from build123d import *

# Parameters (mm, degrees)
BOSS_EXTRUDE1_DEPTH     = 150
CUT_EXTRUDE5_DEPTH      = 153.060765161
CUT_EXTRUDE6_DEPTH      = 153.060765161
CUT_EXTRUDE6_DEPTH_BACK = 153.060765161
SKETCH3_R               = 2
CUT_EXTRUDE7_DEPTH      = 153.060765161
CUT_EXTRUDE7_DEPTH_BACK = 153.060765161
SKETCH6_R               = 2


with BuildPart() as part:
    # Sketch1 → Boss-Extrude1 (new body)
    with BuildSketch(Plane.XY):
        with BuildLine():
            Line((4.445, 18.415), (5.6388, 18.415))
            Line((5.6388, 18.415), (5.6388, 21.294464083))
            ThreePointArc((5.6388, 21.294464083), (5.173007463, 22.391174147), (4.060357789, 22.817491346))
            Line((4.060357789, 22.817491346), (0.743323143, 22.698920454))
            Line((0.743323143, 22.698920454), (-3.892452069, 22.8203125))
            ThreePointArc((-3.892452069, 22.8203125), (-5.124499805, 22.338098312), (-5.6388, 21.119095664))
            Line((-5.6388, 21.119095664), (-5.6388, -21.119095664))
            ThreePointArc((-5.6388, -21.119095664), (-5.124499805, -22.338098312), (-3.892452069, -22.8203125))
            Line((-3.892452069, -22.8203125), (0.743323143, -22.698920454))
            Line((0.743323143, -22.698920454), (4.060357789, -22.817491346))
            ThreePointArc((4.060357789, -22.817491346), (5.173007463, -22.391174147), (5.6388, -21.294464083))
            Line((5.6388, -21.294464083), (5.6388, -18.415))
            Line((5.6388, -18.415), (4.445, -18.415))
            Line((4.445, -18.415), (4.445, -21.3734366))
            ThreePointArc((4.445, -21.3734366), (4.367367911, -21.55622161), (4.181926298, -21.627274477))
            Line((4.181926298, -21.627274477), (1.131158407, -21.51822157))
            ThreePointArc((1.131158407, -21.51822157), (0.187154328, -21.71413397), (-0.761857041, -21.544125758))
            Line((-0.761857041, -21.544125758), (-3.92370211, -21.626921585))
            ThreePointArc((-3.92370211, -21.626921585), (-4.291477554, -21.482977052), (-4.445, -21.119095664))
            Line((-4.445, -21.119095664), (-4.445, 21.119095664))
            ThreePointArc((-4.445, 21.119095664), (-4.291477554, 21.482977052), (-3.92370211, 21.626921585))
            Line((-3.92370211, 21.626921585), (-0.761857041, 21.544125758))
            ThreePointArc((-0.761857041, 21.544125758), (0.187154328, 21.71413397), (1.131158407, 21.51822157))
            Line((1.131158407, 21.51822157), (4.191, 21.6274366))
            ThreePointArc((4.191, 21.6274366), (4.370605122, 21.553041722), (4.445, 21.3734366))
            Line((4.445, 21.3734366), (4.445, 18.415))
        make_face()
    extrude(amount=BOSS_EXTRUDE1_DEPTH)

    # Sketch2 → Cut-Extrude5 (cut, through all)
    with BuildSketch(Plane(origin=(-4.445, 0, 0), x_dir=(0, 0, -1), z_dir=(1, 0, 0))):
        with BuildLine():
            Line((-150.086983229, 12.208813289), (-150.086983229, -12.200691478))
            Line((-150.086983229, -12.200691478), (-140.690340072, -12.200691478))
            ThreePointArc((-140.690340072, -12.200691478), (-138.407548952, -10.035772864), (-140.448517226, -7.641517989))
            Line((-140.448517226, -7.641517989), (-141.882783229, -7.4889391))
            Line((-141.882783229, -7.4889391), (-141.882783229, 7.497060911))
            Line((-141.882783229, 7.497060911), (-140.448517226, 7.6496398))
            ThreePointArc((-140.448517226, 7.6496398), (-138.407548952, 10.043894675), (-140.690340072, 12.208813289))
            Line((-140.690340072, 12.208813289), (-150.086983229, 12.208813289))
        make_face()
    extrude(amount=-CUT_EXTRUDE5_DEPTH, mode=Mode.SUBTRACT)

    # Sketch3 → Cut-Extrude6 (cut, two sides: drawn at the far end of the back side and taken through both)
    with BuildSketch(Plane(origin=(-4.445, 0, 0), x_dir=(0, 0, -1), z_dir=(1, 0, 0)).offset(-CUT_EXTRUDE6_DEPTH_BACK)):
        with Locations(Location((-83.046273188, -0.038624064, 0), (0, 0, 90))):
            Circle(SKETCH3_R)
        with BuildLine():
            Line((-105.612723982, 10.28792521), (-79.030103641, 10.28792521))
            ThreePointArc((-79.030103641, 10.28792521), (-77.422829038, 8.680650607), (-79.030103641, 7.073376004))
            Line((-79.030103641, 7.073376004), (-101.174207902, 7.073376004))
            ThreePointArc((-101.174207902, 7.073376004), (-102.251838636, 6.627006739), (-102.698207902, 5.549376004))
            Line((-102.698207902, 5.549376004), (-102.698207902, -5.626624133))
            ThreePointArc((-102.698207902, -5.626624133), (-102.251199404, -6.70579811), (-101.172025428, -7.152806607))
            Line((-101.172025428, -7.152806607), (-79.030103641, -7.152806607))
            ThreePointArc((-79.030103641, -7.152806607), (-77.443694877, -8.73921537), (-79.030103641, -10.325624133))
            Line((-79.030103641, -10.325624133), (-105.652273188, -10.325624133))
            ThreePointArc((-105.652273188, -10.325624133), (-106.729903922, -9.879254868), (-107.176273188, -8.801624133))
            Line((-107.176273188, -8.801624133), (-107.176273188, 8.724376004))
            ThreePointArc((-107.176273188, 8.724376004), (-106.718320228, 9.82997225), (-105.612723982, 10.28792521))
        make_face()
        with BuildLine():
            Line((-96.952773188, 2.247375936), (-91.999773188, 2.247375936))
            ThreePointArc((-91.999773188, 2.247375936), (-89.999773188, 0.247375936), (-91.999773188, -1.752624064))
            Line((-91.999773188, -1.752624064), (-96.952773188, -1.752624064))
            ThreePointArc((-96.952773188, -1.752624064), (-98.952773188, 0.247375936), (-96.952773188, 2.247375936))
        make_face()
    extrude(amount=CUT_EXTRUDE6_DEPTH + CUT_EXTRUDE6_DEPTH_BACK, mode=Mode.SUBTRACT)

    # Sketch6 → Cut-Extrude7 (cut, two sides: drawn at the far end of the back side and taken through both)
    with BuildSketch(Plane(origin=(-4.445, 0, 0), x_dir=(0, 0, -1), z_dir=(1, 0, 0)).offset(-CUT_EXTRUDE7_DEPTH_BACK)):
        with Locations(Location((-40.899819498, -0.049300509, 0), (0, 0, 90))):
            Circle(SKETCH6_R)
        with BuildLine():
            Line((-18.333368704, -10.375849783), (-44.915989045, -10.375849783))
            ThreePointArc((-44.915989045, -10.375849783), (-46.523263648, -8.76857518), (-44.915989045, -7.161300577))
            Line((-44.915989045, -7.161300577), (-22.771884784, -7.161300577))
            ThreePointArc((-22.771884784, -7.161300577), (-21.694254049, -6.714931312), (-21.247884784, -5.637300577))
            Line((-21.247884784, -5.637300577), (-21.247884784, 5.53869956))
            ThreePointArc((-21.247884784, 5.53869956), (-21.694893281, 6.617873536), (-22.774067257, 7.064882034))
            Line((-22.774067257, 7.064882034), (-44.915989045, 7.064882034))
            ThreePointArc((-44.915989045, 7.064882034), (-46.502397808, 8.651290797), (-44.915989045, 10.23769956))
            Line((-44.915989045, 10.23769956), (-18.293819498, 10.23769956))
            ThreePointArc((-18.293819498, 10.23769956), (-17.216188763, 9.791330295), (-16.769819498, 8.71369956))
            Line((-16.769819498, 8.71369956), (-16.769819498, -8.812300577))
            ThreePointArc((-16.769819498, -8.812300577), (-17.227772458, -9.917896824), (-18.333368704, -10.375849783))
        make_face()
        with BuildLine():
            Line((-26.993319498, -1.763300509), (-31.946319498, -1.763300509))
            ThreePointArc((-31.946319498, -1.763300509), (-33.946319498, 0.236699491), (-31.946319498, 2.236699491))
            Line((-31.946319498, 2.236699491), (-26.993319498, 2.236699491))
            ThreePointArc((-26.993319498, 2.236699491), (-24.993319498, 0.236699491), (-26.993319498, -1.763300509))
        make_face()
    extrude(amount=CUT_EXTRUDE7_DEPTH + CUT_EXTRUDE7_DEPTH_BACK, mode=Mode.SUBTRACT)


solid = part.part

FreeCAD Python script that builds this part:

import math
import FreeCAD as App
import Part
import Sketcher
Q = App.Units.Quantity

doc = App.newDocument("Part")
body = doc.addObject("PartDesign::Body", "Body")

# Sketch on XY plane
sketch1 = body.newObject("Sketcher::SketchObject", "Sketch")
sketch1.AttachmentSupport = (doc.getObject("XY_Plane"), [""])
sketch1.MapMode = "FlatFace"
sketch1.addGeometry([
    Part.LineSegment(App.Vector(4.445, 18.415, 0), App.Vector(5.6388, 18.415, 0)),  # 0
    Part.LineSegment(App.Vector(5.6388, 18.415, 0), App.Vector(5.6388, 21.294464, 0)),  # 1
    Part.ArcOfCircle(Part.Circle(App.Vector(4.1148, 21.294464, 0), App.Vector(0, 0, 1), 1.524), math.radians(0), math.radians(92.047226)),  # 2
    Part.LineSegment(App.Vector(4.060358, 22.817491, 0), App.Vector(0.743323, 22.69892, 0)),  # 3
    Part.LineSegment(App.Vector(0.743323, 22.69892, 0), App.Vector(-3.892452, 22.820312, 0)),  # 4
    Part.ArcOfCircle(Part.Circle(App.Vector(-3.937, 21.119096, 0), App.Vector(0, 0, 1), 1.7018), math.radians(88.5), math.radians(180)),  # 5
    Part.LineSegment(App.Vector(-5.6388, 21.119096, 0), App.Vector(-5.6388, -21.119096, 0)),  # 6
    Part.ArcOfCircle(Part.Circle(App.Vector(-3.937, -21.119096, 0), App.Vector(0, 0, 1), 1.7018), math.radians(180), math.radians(271.5)),  # 7
    Part.LineSegment(App.Vector(-3.892452, -22.820312, 0), App.Vector(0.743323, -22.69892, 0)),  # 8
    Part.LineSegment(App.Vector(0.743323, -22.69892, 0), App.Vector(4.060358, -22.817491, 0)),  # 9
    Part.ArcOfCircle(Part.Circle(App.Vector(4.1148, -21.294464, 0), App.Vector(0, 0, 1), 1.524), math.radians(-92.047226), math.radians(0)),  # 10
    Part.LineSegment(App.Vector(5.6388, -21.294464, 0), App.Vector(5.6388, -18.415, 0)),  # 11
    Part.LineSegment(App.Vector(5.6388, -18.415, 0), App.Vector(4.445, -18.415, 0)),  # 12
    Part.LineSegment(App.Vector(4.445, -18.415, 0), App.Vector(4.445, -21.373437, 0)),  # 13
    Part.ArcOfCircle(Part.Circle(App.Vector(4.191, -21.373437, 0), App.Vector(0, 0, 1), 0.254), math.radians(-92.047226), math.radians(0)),  # 14
    Part.LineSegment(App.Vector(4.181926, -21.627274, 0), App.Vector(1.131158, -21.518222, 0)),  # 15
    Part.ArcOfCircle(Part.Circle(App.Vector(0.1524, -19.174372, 0), App.Vector(0, 0, 1), 2.54), math.radians(-111.09674), math.radians(-67.335277)),  # 16
    Part.LineSegment(App.Vector(-0.761857, -21.544126, 0), App.Vector(-3.923702, -21.626922, 0)),  # 17
    Part.ArcOfCircle(Part.Circle(App.Vector(-3.937, -21.119096, 0), App.Vector(0, 0, 1), 0.508), math.radians(180), math.radians(271.5)),  # 18
    Part.LineSegment(App.Vector(-4.445, -21.119096, 0), App.Vector(-4.445, 21.119096, 0)),  # 19
    Part.ArcOfCircle(Part.Circle(App.Vector(-3.937, 21.119096, 0), App.Vector(0, 0, 1), 0.508), math.radians(88.5), math.radians(180)),  # 20
    Part.LineSegment(App.Vector(-3.923702, 21.626922, 0), App.Vector(-0.761857, 21.544126, 0)),  # 21
    Part.ArcOfCircle(Part.Circle(App.Vector(0.1524, 19.174372, 0), App.Vector(0, 0, 1), 2.54), math.radians(67.335277), math.radians(111.09674)),  # 22
    Part.LineSegment(App.Vector(1.131158, 21.518222, 0), App.Vector(4.191, 21.627437, 0)),  # 23
    Part.ArcOfCircle(Part.Circle(App.Vector(4.191, 21.373437, 0), App.Vector(0, 0, 1), 0.254), math.radians(0), math.radians(90)),  # 24
    Part.LineSegment(App.Vector(4.445, 21.373437, 0), App.Vector(4.445, 18.415, 0)),  # 25
], False)
sketch1.addConstraint([
    Sketcher.Constraint("Coincident", 0, 2, 1, 1),
    Sketcher.Constraint("Tangent", 1, 2, 2, 1),
    Sketcher.Constraint("Tangent", 2, 2, 3, 1),
    Sketcher.Constraint("Coincident", 3, 2, 4, 1),
    Sketcher.Constraint("Tangent", 4, 2, 5, 1),
    Sketcher.Constraint("Tangent", 5, 2, 6, 1),
    Sketcher.Constraint("Tangent", 6, 2, 7, 1),
    Sketcher.Constraint("Tangent", 7, 2, 8, 1),
    Sketcher.Constraint("Coincident", 8, 2, 9, 1),
    Sketcher.Constraint("Tangent", 9, 2, 10, 1),
    Sketcher.Constraint("Tangent", 10, 2, 11, 1),
    Sketcher.Constraint("Coincident", 11, 2, 12, 1),
    Sketcher.Constraint("Coincident", 12, 2, 13, 1),
    Sketcher.Constraint("Tangent", 13, 2, 14, 2),
    Sketcher.Constraint("Tangent", 14, 1, 15, 1),
    Sketcher.Constraint("Coincident", 15, 2, 16, 2),
    Sketcher.Constraint("Coincident", 16, 1, 17, 1),
    Sketcher.Constraint("Tangent", 17, 2, 18, 2),
    Sketcher.Constraint("Tangent", 18, 1, 19, 1),
    Sketcher.Constraint("Tangent", 19, 2, 20, 2),
    Sketcher.Constraint("Tangent", 20, 1, 21, 1),
    Sketcher.Constraint("Coincident", 21, 2, 22, 2),
    Sketcher.Constraint("Coincident", 22, 1, 23, 1),
    Sketcher.Constraint("Coincident", 23, 2, 24, 2),
    Sketcher.Constraint("Tangent", 24, 1, 25, 1),
    Sketcher.Constraint("Coincident", 25, 2, 0, 1),
    Sketcher.Constraint("Horizontal", 0),
    Sketcher.Constraint("Vertical", 1),
    Sketcher.Constraint("Vertical", 6),
    Sketcher.Constraint("Vertical", 11),
    Sketcher.Constraint("Horizontal", 12),
    Sketcher.Constraint("Vertical", 13),
    Sketcher.Constraint("Vertical", 19),
    Sketcher.Constraint("Vertical", 25),
    Sketcher.Constraint("Coincident", 18, 3, 7, 3),
    Sketcher.Constraint("Coincident", 20, 3, 5, 3),
    Sketcher.Constraint("Equal", 5, 7),
    Sketcher.Constraint("Equal", 2, 10),
    Sketcher.Constraint("Equal", 16, 22),
    Sketcher.Constraint("Equal", 14, 24),
    Sketcher.Constraint("Symmetric", 2, 3, 10, 3, -1),
    Sketcher.Constraint("Symmetric", 16, 3, 22, 3, -1),
    Sketcher.Constraint("Symmetric", 14, 3, 24, 3, -1),
    Sketcher.Constraint("Symmetric", 4, 2, 7, 2, -1),
    Sketcher.Constraint("Parallel", 9, 15),
    Sketcher.Constraint("Parallel", 8, 17),
    Sketcher.Constraint("Parallel", 4, 21),
    Sketcher.Constraint("Vertical", 3, 2, 8, 2),
    Sketcher.Constraint("Vertical", 15, 2, 22, 1),
    Sketcher.Constraint("Vertical", 24, 3, 23, 2),
    Sketcher.Constraint("Equal", 1, 11),
    Sketcher.Constraint("Radius", 16, Q("0.1 in")),
    Sketcher.Constraint("Radius", 2, Q("0.06 in")),
    Sketcher.Constraint("Radius", 14, Q("0.01 in")),
    Sketcher.Constraint("Radius", 18, Q("0.02 in")),
    Sketcher.Constraint("Radius", 5, Q("0.067 in")),
    Sketcher.Constraint("Angle", 4, Q("178.5 deg")),
    Sketcher.Constraint("DistanceX", 0, 1, 0, 2, Q("0.047 in")),
    Sketcher.Constraint("DistanceX", 7, 3, 14, 3, Q("0.32 in")),
    Sketcher.Constraint("DistanceX", -1, 1, 2, 3, Q("0.162 in")),
    Sketcher.Constraint("DistanceX", -1, 1, 16, 3, Q("0.006 in")),
    Sketcher.Constraint("DistanceY", -1, 1, 0, 2, Q("0.725 in")),
    Sketcher.Constraint("DistanceY", 15, 2, 14, 3, Q("0.0057002 in")),
    Sketcher.Constraint("DistanceY", 6, 2, 6, 1, 42.238191),
    Sketcher.Constraint("DistanceY", 14, 3, 2, 3, 42.667901),
    Sketcher.Constraint("DistanceY", 8, 2, 15, 2, 1.180699),
    Sketcher.Constraint("Distance", 17, 3.162929),
])
pad1 = body.newObject("PartDesign::Pad", "Pad")
pad1.Profile = sketch1
pad1.Length = 150

# Sketch on YZ plane
sketch2 = body.newObject("Sketcher::SketchObject", "Sketch001")
sketch2.AttachmentSupport = (doc.getObject("YZ_Plane"), [""])
sketch2.MapMode = "FlatFace"
sketch2.AttachmentOffset = App.Placement(App.Vector(0, 0, -0.175 * 25.4), App.Rotation())
sketch2.addGeometry([
    Part.LineSegment(App.Vector(12.208813, 150.086983, 0), App.Vector(-12.200691, 150.086983, 0)),  # 0
    Part.LineSegment(App.Vector(-12.200691, 150.086983, 0), App.Vector(-12.200691, 140.69034, 0)),  # 1
    Part.ArcOfCircle(Part.Circle(App.Vector(-9.914691, 140.69034, 0), App.Vector(0, 0, 1), 2.286), math.radians(180), math.radians(353.927646)),  # 2
    Part.LineSegment(App.Vector(-7.641518, 140.448517, 0), App.Vector(-7.488939, 141.882783, 0)),  # 3
    Part.LineSegment(App.Vector(-7.488939, 141.882783, 0), App.Vector(7.497061, 141.882783, 0)),  # 4
    Part.LineSegment(App.Vector(7.497061, 141.882783, 0), App.Vector(7.64964, 140.448517, 0)),  # 5
    Part.ArcOfCircle(Part.Circle(App.Vector(9.922813, 140.69034, 0), App.Vector(0, 0, 1), 2.286), math.radians(-173.927646), math.radians(0)),  # 6
    Part.LineSegment(App.Vector(12.208813, 140.69034, 0), App.Vector(12.208813, 150.086983, 0)),  # 7
], False)
sketch2.addConstraint([
    Sketcher.Constraint("Coincident", 0, 2, 1, 1),
    Sketcher.Constraint("Tangent", 1, 2, 2, 1),
    Sketcher.Constraint("Tangent", 2, 2, 3, 1),
    Sketcher.Constraint("Coincident", 3, 2, 4, 1),
    Sketcher.Constraint("Coincident", 4, 2, 5, 1),
    Sketcher.Constraint("Tangent", 5, 2, 6, 1),
    Sketcher.Constraint("Tangent", 6, 2, 7, 1),
    Sketcher.Constraint("Coincident", 7, 2, 0, 1),
    Sketcher.Constraint("Horizontal", 0),
    Sketcher.Constraint("Vertical", 1),
    Sketcher.Constraint("Horizontal", 4),
    Sketcher.Constraint("Vertical", 7),
    Sketcher.Constraint("Equal", 2, 6),
    Sketcher.Constraint("Horizontal", 2, 3, 6, 3),
    Sketcher.Constraint("Horizontal", 2, 2, 5, 2),
    Sketcher.Constraint("Radius", 2, Q("0.09 in")),
    Sketcher.Constraint("DistanceX", 4, 1, 4, 2, Q("0.59 in")),
    Sketcher.Constraint("DistanceY", 3, 2, 0, 2, Q("0.323 in")),
    Sketcher.Constraint("Distance", 3, 1.442359),
    Sketcher.Constraint("DistanceX", 0, 2, 0, 1, 24.409505),
    Sketcher.Constraint("DistanceX", 2, 3, -1, 1, 9.914691),
    Sketcher.Constraint("DistanceY", -1, 1, 2, 3, 140.69034),
])
pocket1 = body.newObject("PartDesign::Pocket", "Pocket")
pocket1.Profile = sketch2
pocket1.Type = "ThroughAll"

# Sketch on YZ plane
sketch3 = body.newObject("Sketcher::SketchObject", "Sketch002")
sketch3.AttachmentSupport = (doc.getObject("YZ_Plane"), [""])
sketch3.MapMode = "FlatFace"
sketch3.AttachmentOffset = App.Placement(App.Vector(0, 0, -0.175 * 25.4), App.Rotation())
sketch3.addGeometry([
    Part.Circle(App.Vector(-0.038624, 83.046273, 0), App.Vector(0, 0, 1), 2),  # 0
    Part.LineSegment(App.Vector(10.287925, 79.030104, 0), App.Vector(10.287925, 105.612724, 0)),  # 1
    Part.ArcOfCircle(Part.Circle(App.Vector(8.724376, 105.612724, 0), App.Vector(0, 0, 1), 1.563549), math.radians(0), math.radians(90)),  # 2
    Part.LineSegment(App.Vector(8.724376, 107.176273, 0), App.Vector(-8.801624, 107.176273, 0)),  # 3
    Part.ArcOfCircle(Part.Circle(App.Vector(-8.801624, 105.652273, 0), App.Vector(0, 0, 1), 1.524), math.radians(90), math.radians(180)),  # 4
    Part.LineSegment(App.Vector(-10.325624, 105.652273, 0), App.Vector(-10.325624, 79.030104, 0)),  # 5
    Part.ArcOfCircle(Part.Circle(App.Vector(-8.739215, 79.030104, 0), App.Vector(0, 0, 1), 1.586409), math.radians(180), math.radians(360)),  # 6
    Part.LineSegment(App.Vector(-7.152807, 79.030104, 0), App.Vector(-7.152807, 101.172025, 0)),  # 7
    Part.ArcOfCircle(Part.Circle(App.Vector(-5.626624, 101.172025, 0), App.Vector(0, 0, 1), 1.526182), math.radians(90), math.radians(180)),  # 8
    Part.LineSegment(App.Vector(-5.626624, 102.698208, 0), App.Vector(5.549376, 102.698208, 0)),  # 9
    Part.ArcOfCircle(Part.Circle(App.Vector(5.549376, 101.174208, 0), App.Vector(0, 0, 1), 1.524), math.radians(0), math.radians(90)),  # 10
    Part.LineSegment(App.Vector(7.073376, 101.174208, 0), App.Vector(7.073376, 79.030104, 0)),  # 11
    Part.ArcOfCircle(Part.Circle(App.Vector(8.680651, 79.030104, 0), App.Vector(0, 0, 1), 1.607275), math.radians(180), math.radians(360)),  # 12
    Part.LineSegment(App.Vector(2.247376, 91.999773, 0), App.Vector(2.247376, 96.952773, 0)),  # 13
    Part.ArcOfCircle(Part.Circle(App.Vector(0.247376, 96.952773, 0), App.Vector(0, 0, 1), 2), math.radians(0), math.radians(180)),  # 14
    Part.LineSegment(App.Vector(-1.752624, 96.952773, 0), App.Vector(-1.752624, 91.999773, 0)),  # 15
    Part.ArcOfCircle(Part.Circle(App.Vector(0.247376, 91.999773, 0), App.Vector(0, 0, 1), 2), math.radians(180), math.radians(360)),  # 16
], False)
sketch3.addConstraint([
    Sketcher.Constraint("Tangent", 1, 2, 2, 1),
    Sketcher.Constraint("Tangent", 2, 2, 3, 1),
    Sketcher.Constraint("Tangent", 3, 2, 4, 1),
    Sketcher.Constraint("Tangent", 4, 2, 5, 1),
    Sketcher.Constraint("Tangent", 5, 2, 6, 1),
    Sketcher.Constraint("Tangent", 6, 2, 7, 1),
    Sketcher.Constraint("Tangent", 7, 2, 8, 2),
    Sketcher.Constraint("Tangent", 8, 1, 9, 1),
    Sketcher.Constraint("Tangent", 9, 2, 10, 2),
    Sketcher.Constraint("Tangent", 10, 1, 11, 1),
    Sketcher.Constraint("Tangent", 11, 2, 12, 1),
    Sketcher.Constraint("Tangent", 12, 2, 1, 1),
    Sketcher.Constraint("Tangent", 13, 2, 14, 1),
    Sketcher.Constraint("Tangent", 14, 2, 15, 1),
    Sketcher.Constraint("Tangent", 15, 2, 16, 1),
    Sketcher.Constraint("Tangent", 16, 2, 13, 1),
    Sketcher.Constraint("Vertical", 1),
    Sketcher.Constraint("Horizontal", 3),
    Sketcher.Constraint("Vertical", 5),
    Sketcher.Constraint("Vertical", 7),
    Sketcher.Constraint("Horizontal", 9),
    Sketcher.Constraint("Vertical", 11),
    Sketcher.Constraint("Vertical", 13),
    Sketcher.Constraint("Vertical", 15),
    Sketcher.Constraint("Equal", 4, 10),
    Sketcher.Constraint("Equal", 0, 14),
    Sketcher.Constraint("Horizontal", 6, 3, 12, 3),
    Sketcher.Constraint("Radius", 4, Q("0.06 in")),
    Sketcher.Constraint("DistanceX", 3, 2, 3, 1, Q("0.69 in")),
    Sketcher.Constraint("DistanceX", 9, 1, 9, 2, Q("0.44 in")),
    Sketcher.Constraint("Diameter", 0, 4.0),
    Sketcher.Constraint("DistanceY", 13, 1, 13, 2, Q("0.195 in")),
    Sketcher.Constraint("DistanceY", 0, 3, 4, 3, Q("0.89 in")),
    Sketcher.Constraint("DistanceX", 8, 3, 0, 3, Q("0.22 in")),
    Sketcher.Constraint("DistanceX", 13, 2, 10, 3, Q("0.13 in")),
    Sketcher.Constraint("Radius", 2, 1.563549),
    Sketcher.Constraint("Radius", 6, 1.586409),
    Sketcher.Constraint("DistanceX", 0, 3, 2, 3, Q("0.345 in")),
    Sketcher.Constraint("DistanceY", 14, 3, 4, 3, Q("0.3425 in")),
    Sketcher.Constraint("DistanceY", 1, 1, 1, 2, 26.58262),
    Sketcher.Constraint("DistanceY", 7, 1, 7, 2, 22.141922),
    Sketcher.Constraint("DistanceX", -1, 1, 12, 3, 8.680651),
    Sketcher.Constraint("DistanceY", -1, 1, 0, 3, 83.046273),
])
pocket2 = body.newObject("PartDesign::Pocket", "Pocket001")
pocket2.Profile = sketch3
pocket2.Type = "ThroughAll"
pocket2.Midplane = True

# Sketch on YZ plane
sketch4 = body.newObject("Sketcher::SketchObject", "Sketch003")
sketch4.AttachmentSupport = (doc.getObject("YZ_Plane"), [""])
sketch4.MapMode = "FlatFace"
sketch4.AttachmentOffset = App.Placement(App.Vector(0, 0, -0.175 * 25.4), App.Rotation())
sketch4.addGeometry([
    Part.Circle(App.Vector(-0.049301, 40.899819, 0), App.Vector(0, 0, 1), 2),  # 0
    Part.LineSegment(App.Vector(-10.37585, 44.915989, 0), App.Vector(-10.37585, 18.333369, 0)),  # 1
    Part.ArcOfCircle(Part.Circle(App.Vector(-8.812301, 18.333369, 0), App.Vector(0, 0, 1), 1.563549), math.radians(180), math.radians(270)),  # 2
    Part.LineSegment(App.Vector(-8.812301, 16.769819, 0), App.Vector(8.7137, 16.769819, 0)),  # 3
    Part.ArcOfCircle(Part.Circle(App.Vector(8.7137, 18.293819, 0), App.Vector(0, 0, 1), 1.524), math.radians(-90), math.radians(0)),  # 4
    Part.LineSegment(App.Vector(10.2377, 18.293819, 0), App.Vector(10.2377, 44.915989, 0)),  # 5
    Part.ArcOfCircle(Part.Circle(App.Vector(8.651291, 44.915989, 0), App.Vector(0, 0, 1), 1.586409), math.radians(0), math.radians(180)),  # 6
    Part.LineSegment(App.Vector(7.064882, 44.915989, 0), App.Vector(7.064882, 22.774067, 0)),  # 7
    Part.ArcOfCircle(Part.Circle(App.Vector(5.5387, 22.774067, 0), App.Vector(0, 0, 1), 1.526182), math.radians(-90), math.radians(0)),  # 8
    Part.LineSegment(App.Vector(5.5387, 21.247885, 0), App.Vector(-5.637301, 21.247885, 0)),  # 9
    Part.ArcOfCircle(Part.Circle(App.Vector(-5.637301, 22.771885, 0), App.Vector(0, 0, 1), 1.524), math.radians(180), math.radians(270)),  # 10
    Part.LineSegment(App.Vector(-7.161301, 22.771885, 0), App.Vector(-7.161301, 44.915989, 0)),  # 11
    Part.ArcOfCircle(Part.Circle(App.Vector(-8.768575, 44.915989, 0), App.Vector(0, 0, 1), 1.607275), math.radians(0), math.radians(180)),  # 12
    Part.LineSegment(App.Vector(-1.763301, 31.946319, 0), App.Vector(-1.763301, 26.993319, 0)),  # 13
    Part.ArcOfCircle(Part.Circle(App.Vector(0.236699, 26.993319, 0), App.Vector(0, 0, 1), 2), math.radians(180), math.radians(360)),  # 14
    Part.LineSegment(App.Vector(2.236699, 26.993319, 0), App.Vector(2.236699, 31.946319, 0)),  # 15
    Part.ArcOfCircle(Part.Circle(App.Vector(0.236699, 31.946319, 0), App.Vector(0, 0, 1), 2), math.radians(0), math.radians(180)),  # 16
], False)
sketch4.addConstraint([
    Sketcher.Constraint("Tangent", 1, 2, 2, 1),
    Sketcher.Constraint("Tangent", 2, 2, 3, 1),
    Sketcher.Constraint("Tangent", 3, 2, 4, 1),
    Sketcher.Constraint("Tangent", 4, 2, 5, 1),
    Sketcher.Constraint("Tangent", 5, 2, 6, 1),
    Sketcher.Constraint("Tangent", 6, 2, 7, 1),
    Sketcher.Constraint("Tangent", 7, 2, 8, 2),
    Sketcher.Constraint("Tangent", 8, 1, 9, 1),
    Sketcher.Constraint("Tangent", 9, 2, 10, 2),
    Sketcher.Constraint("Tangent", 10, 1, 11, 1),
    Sketcher.Constraint("Tangent", 11, 2, 12, 1),
    Sketcher.Constraint("Tangent", 12, 2, 1, 1),
    Sketcher.Constraint("Tangent", 13, 2, 14, 1),
    Sketcher.Constraint("Tangent", 14, 2, 15, 1),
    Sketcher.Constraint("Tangent", 15, 2, 16, 1),
    Sketcher.Constraint("Tangent", 16, 2, 13, 1),
    Sketcher.Constraint("Vertical", 1),
    Sketcher.Constraint("Horizontal", 3),
    Sketcher.Constraint("Vertical", 5),
    Sketcher.Constraint("Vertical", 7),
    Sketcher.Constraint("Horizontal", 9),
    Sketcher.Constraint("Vertical", 11),
    Sketcher.Constraint("Vertical", 13),
    Sketcher.Constraint("Vertical", 15),
    Sketcher.Constraint("Equal", 4, 10),
    Sketcher.Constraint("Equal", 0, 14),
    Sketcher.Constraint("Horizontal", 6, 3, 12, 3),
    Sketcher.Constraint("Radius", 4, Q("0.06 in")),
    Sketcher.Constraint("DistanceX", 3, 1, 3, 2, Q("0.69 in")),
    Sketcher.Constraint("DistanceX", 9, 2, 9, 1, Q("0.44 in")),
    Sketcher.Constraint("Diameter", 0, 4.0),
    Sketcher.Constraint("DistanceY", 13, 2, 13, 1, Q("0.195 in")),
    Sketcher.Constraint("DistanceY", 4, 3, 0, 3, Q("0.89 in")),
    Sketcher.Constraint("DistanceX", 0, 3, 8, 3, Q("0.22 in")),
    Sketcher.Constraint("DistanceX", 14, 2, 8, 3, Q("0.13 in")),
    Sketcher.Constraint("Radius", 2, 1.563549),
    Sketcher.Constraint("Radius", 6, 1.586409),
    Sketcher.Constraint("DistanceX", 2, 3, 0, 3, Q("0.345 in")),
    Sketcher.Constraint("DistanceY", 4, 3, 14, 3, Q("0.3425 in")),
    Sketcher.Constraint("DistanceY", 1, 2, 1, 1, 26.58262),
    Sketcher.Constraint("DistanceY", 7, 2, 7, 1, 22.141922),
    Sketcher.Constraint("DistanceX", 0, 3, -1, 1, 0.049301),
    Sketcher.Constraint("DistanceY", -1, 1, 0, 3, 40.899819),
])
pocket3 = body.newObject("PartDesign::Pocket", "Pocket002")
pocket3.Profile = sketch4
pocket3.Type = "ThroughAll"
pocket3.Midplane = True

doc.recompute()
